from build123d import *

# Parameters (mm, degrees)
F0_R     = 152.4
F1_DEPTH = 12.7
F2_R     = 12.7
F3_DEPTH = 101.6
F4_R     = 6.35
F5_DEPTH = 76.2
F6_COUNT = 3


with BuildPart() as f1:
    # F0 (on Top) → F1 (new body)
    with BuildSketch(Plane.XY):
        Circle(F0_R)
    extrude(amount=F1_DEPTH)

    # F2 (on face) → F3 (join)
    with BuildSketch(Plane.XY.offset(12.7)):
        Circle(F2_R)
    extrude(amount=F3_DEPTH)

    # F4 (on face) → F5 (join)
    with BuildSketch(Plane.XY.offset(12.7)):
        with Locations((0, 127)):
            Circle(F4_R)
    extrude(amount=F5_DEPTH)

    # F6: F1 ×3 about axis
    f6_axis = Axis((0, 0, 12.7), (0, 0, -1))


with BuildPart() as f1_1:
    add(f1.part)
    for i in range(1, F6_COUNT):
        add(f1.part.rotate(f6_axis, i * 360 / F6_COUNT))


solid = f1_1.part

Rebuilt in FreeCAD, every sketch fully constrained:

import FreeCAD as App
import Part
import Sketcher
from FreeCAD import Vector
Q = App.Units.Quantity

doc = App.newDocument("Part")
body = doc.addObject("PartDesign::Body", "Body")

sketch1 = body.newObject("Sketcher::SketchObject", "Sketch")
sketch1.AttachmentSupport = (doc.getObject("XY_Plane"), [""])
sketch1.MapMode = "FlatFace"
sketch1.addGeometry(Part.Circle(Vector(0, 0, 0), Vector(0, 0, 1), 152), False)
sketch1.addConstraint([
    Sketcher.Constraint("Coincident", 0, 3, -1, 1),
    Sketcher.Constraint("Diameter", 0, Q("12 in")),
])
pad1 = body.newObject("PartDesign::Pad", "Pad")
pad1.Profile = sketch1
pad1.Length = Q("0.5 in")

sketch2 = body.newObject("Sketcher::SketchObject", "Sketch001")
sketch2.AttachmentSupport = (doc.getObject("XY_Plane"), [""])
sketch2.MapMode = "FlatFace"
sketch2.AttachmentOffset = App.Placement(Vector(0, 0, 0.5 * 25.4), App.Rotation())
sketch2.addGeometry(Part.Circle(Vector(0, 0, 0), Vector(0, 0, 1), 13), False)
sketch2.addConstraint([
    Sketcher.Constraint("Coincident", 0, 3, -1, 1),
    Sketcher.Constraint("Diameter", 0, Q("1 in")),
])
pad2 = body.newObject("PartDesign::Pad", "Pad001")
pad2.Profile = sketch2
pad2.Length = Q("4 in")

sketch3 = body.newObject("Sketcher::SketchObject", "Sketch002")
sketch3.AttachmentSupport = (doc.getObject("XY_Plane"), [""])
sketch3.MapMode = "FlatFace"
sketch3.AttachmentOffset = App.Placement(Vector(0, 0, 0.5 * 25.4), App.Rotation())
sketch3.addGeometry(Part.Circle(Vector(0, 127, 0), Vector(0, 0, 1), 6), False)
sketch3.addConstraint([
    Sketcher.Constraint("PointOnObject", 0, 3, -2),
    Sketcher.Constraint("Diameter", 0, Q("0.5 in")),
    Sketcher.Constraint("DistanceY", -1, 1, 0, 3, Q("5 in")),
])
pad3 = body.newObject("PartDesign::Pad", "Pad002")
pad3.Profile = sketch3
pad3.Length = Q("3 in")
body2 = doc.addObject("PartDesign::Body", "Body001")
doc.recompute()

body2.BaseFeature = body
doc.recompute()

body3 = doc.addObject("PartDesign::Body", "Body002")
body3.BaseFeature = body
body3.Placement = App.Placement(Vector(0, 0, 0), App.Rotation(Vector(0, 0, -1), 120))
boolean = body2.newObject("PartDesign::Boolean", "Boolean")
boolean.Type = "Fuse"
boolean.addObjects([body3])
doc.recompute()

body.Placement = App.Placement(Vector(0, 0, 0), App.Rotation(Vector(0, 0, -1), 240))
boolean2 = body2.newObject("PartDesign::Boolean", "Boolean001")
boolean2.Type = "Fuse"
boolean2.addObjects([body])

doc.recompute()
